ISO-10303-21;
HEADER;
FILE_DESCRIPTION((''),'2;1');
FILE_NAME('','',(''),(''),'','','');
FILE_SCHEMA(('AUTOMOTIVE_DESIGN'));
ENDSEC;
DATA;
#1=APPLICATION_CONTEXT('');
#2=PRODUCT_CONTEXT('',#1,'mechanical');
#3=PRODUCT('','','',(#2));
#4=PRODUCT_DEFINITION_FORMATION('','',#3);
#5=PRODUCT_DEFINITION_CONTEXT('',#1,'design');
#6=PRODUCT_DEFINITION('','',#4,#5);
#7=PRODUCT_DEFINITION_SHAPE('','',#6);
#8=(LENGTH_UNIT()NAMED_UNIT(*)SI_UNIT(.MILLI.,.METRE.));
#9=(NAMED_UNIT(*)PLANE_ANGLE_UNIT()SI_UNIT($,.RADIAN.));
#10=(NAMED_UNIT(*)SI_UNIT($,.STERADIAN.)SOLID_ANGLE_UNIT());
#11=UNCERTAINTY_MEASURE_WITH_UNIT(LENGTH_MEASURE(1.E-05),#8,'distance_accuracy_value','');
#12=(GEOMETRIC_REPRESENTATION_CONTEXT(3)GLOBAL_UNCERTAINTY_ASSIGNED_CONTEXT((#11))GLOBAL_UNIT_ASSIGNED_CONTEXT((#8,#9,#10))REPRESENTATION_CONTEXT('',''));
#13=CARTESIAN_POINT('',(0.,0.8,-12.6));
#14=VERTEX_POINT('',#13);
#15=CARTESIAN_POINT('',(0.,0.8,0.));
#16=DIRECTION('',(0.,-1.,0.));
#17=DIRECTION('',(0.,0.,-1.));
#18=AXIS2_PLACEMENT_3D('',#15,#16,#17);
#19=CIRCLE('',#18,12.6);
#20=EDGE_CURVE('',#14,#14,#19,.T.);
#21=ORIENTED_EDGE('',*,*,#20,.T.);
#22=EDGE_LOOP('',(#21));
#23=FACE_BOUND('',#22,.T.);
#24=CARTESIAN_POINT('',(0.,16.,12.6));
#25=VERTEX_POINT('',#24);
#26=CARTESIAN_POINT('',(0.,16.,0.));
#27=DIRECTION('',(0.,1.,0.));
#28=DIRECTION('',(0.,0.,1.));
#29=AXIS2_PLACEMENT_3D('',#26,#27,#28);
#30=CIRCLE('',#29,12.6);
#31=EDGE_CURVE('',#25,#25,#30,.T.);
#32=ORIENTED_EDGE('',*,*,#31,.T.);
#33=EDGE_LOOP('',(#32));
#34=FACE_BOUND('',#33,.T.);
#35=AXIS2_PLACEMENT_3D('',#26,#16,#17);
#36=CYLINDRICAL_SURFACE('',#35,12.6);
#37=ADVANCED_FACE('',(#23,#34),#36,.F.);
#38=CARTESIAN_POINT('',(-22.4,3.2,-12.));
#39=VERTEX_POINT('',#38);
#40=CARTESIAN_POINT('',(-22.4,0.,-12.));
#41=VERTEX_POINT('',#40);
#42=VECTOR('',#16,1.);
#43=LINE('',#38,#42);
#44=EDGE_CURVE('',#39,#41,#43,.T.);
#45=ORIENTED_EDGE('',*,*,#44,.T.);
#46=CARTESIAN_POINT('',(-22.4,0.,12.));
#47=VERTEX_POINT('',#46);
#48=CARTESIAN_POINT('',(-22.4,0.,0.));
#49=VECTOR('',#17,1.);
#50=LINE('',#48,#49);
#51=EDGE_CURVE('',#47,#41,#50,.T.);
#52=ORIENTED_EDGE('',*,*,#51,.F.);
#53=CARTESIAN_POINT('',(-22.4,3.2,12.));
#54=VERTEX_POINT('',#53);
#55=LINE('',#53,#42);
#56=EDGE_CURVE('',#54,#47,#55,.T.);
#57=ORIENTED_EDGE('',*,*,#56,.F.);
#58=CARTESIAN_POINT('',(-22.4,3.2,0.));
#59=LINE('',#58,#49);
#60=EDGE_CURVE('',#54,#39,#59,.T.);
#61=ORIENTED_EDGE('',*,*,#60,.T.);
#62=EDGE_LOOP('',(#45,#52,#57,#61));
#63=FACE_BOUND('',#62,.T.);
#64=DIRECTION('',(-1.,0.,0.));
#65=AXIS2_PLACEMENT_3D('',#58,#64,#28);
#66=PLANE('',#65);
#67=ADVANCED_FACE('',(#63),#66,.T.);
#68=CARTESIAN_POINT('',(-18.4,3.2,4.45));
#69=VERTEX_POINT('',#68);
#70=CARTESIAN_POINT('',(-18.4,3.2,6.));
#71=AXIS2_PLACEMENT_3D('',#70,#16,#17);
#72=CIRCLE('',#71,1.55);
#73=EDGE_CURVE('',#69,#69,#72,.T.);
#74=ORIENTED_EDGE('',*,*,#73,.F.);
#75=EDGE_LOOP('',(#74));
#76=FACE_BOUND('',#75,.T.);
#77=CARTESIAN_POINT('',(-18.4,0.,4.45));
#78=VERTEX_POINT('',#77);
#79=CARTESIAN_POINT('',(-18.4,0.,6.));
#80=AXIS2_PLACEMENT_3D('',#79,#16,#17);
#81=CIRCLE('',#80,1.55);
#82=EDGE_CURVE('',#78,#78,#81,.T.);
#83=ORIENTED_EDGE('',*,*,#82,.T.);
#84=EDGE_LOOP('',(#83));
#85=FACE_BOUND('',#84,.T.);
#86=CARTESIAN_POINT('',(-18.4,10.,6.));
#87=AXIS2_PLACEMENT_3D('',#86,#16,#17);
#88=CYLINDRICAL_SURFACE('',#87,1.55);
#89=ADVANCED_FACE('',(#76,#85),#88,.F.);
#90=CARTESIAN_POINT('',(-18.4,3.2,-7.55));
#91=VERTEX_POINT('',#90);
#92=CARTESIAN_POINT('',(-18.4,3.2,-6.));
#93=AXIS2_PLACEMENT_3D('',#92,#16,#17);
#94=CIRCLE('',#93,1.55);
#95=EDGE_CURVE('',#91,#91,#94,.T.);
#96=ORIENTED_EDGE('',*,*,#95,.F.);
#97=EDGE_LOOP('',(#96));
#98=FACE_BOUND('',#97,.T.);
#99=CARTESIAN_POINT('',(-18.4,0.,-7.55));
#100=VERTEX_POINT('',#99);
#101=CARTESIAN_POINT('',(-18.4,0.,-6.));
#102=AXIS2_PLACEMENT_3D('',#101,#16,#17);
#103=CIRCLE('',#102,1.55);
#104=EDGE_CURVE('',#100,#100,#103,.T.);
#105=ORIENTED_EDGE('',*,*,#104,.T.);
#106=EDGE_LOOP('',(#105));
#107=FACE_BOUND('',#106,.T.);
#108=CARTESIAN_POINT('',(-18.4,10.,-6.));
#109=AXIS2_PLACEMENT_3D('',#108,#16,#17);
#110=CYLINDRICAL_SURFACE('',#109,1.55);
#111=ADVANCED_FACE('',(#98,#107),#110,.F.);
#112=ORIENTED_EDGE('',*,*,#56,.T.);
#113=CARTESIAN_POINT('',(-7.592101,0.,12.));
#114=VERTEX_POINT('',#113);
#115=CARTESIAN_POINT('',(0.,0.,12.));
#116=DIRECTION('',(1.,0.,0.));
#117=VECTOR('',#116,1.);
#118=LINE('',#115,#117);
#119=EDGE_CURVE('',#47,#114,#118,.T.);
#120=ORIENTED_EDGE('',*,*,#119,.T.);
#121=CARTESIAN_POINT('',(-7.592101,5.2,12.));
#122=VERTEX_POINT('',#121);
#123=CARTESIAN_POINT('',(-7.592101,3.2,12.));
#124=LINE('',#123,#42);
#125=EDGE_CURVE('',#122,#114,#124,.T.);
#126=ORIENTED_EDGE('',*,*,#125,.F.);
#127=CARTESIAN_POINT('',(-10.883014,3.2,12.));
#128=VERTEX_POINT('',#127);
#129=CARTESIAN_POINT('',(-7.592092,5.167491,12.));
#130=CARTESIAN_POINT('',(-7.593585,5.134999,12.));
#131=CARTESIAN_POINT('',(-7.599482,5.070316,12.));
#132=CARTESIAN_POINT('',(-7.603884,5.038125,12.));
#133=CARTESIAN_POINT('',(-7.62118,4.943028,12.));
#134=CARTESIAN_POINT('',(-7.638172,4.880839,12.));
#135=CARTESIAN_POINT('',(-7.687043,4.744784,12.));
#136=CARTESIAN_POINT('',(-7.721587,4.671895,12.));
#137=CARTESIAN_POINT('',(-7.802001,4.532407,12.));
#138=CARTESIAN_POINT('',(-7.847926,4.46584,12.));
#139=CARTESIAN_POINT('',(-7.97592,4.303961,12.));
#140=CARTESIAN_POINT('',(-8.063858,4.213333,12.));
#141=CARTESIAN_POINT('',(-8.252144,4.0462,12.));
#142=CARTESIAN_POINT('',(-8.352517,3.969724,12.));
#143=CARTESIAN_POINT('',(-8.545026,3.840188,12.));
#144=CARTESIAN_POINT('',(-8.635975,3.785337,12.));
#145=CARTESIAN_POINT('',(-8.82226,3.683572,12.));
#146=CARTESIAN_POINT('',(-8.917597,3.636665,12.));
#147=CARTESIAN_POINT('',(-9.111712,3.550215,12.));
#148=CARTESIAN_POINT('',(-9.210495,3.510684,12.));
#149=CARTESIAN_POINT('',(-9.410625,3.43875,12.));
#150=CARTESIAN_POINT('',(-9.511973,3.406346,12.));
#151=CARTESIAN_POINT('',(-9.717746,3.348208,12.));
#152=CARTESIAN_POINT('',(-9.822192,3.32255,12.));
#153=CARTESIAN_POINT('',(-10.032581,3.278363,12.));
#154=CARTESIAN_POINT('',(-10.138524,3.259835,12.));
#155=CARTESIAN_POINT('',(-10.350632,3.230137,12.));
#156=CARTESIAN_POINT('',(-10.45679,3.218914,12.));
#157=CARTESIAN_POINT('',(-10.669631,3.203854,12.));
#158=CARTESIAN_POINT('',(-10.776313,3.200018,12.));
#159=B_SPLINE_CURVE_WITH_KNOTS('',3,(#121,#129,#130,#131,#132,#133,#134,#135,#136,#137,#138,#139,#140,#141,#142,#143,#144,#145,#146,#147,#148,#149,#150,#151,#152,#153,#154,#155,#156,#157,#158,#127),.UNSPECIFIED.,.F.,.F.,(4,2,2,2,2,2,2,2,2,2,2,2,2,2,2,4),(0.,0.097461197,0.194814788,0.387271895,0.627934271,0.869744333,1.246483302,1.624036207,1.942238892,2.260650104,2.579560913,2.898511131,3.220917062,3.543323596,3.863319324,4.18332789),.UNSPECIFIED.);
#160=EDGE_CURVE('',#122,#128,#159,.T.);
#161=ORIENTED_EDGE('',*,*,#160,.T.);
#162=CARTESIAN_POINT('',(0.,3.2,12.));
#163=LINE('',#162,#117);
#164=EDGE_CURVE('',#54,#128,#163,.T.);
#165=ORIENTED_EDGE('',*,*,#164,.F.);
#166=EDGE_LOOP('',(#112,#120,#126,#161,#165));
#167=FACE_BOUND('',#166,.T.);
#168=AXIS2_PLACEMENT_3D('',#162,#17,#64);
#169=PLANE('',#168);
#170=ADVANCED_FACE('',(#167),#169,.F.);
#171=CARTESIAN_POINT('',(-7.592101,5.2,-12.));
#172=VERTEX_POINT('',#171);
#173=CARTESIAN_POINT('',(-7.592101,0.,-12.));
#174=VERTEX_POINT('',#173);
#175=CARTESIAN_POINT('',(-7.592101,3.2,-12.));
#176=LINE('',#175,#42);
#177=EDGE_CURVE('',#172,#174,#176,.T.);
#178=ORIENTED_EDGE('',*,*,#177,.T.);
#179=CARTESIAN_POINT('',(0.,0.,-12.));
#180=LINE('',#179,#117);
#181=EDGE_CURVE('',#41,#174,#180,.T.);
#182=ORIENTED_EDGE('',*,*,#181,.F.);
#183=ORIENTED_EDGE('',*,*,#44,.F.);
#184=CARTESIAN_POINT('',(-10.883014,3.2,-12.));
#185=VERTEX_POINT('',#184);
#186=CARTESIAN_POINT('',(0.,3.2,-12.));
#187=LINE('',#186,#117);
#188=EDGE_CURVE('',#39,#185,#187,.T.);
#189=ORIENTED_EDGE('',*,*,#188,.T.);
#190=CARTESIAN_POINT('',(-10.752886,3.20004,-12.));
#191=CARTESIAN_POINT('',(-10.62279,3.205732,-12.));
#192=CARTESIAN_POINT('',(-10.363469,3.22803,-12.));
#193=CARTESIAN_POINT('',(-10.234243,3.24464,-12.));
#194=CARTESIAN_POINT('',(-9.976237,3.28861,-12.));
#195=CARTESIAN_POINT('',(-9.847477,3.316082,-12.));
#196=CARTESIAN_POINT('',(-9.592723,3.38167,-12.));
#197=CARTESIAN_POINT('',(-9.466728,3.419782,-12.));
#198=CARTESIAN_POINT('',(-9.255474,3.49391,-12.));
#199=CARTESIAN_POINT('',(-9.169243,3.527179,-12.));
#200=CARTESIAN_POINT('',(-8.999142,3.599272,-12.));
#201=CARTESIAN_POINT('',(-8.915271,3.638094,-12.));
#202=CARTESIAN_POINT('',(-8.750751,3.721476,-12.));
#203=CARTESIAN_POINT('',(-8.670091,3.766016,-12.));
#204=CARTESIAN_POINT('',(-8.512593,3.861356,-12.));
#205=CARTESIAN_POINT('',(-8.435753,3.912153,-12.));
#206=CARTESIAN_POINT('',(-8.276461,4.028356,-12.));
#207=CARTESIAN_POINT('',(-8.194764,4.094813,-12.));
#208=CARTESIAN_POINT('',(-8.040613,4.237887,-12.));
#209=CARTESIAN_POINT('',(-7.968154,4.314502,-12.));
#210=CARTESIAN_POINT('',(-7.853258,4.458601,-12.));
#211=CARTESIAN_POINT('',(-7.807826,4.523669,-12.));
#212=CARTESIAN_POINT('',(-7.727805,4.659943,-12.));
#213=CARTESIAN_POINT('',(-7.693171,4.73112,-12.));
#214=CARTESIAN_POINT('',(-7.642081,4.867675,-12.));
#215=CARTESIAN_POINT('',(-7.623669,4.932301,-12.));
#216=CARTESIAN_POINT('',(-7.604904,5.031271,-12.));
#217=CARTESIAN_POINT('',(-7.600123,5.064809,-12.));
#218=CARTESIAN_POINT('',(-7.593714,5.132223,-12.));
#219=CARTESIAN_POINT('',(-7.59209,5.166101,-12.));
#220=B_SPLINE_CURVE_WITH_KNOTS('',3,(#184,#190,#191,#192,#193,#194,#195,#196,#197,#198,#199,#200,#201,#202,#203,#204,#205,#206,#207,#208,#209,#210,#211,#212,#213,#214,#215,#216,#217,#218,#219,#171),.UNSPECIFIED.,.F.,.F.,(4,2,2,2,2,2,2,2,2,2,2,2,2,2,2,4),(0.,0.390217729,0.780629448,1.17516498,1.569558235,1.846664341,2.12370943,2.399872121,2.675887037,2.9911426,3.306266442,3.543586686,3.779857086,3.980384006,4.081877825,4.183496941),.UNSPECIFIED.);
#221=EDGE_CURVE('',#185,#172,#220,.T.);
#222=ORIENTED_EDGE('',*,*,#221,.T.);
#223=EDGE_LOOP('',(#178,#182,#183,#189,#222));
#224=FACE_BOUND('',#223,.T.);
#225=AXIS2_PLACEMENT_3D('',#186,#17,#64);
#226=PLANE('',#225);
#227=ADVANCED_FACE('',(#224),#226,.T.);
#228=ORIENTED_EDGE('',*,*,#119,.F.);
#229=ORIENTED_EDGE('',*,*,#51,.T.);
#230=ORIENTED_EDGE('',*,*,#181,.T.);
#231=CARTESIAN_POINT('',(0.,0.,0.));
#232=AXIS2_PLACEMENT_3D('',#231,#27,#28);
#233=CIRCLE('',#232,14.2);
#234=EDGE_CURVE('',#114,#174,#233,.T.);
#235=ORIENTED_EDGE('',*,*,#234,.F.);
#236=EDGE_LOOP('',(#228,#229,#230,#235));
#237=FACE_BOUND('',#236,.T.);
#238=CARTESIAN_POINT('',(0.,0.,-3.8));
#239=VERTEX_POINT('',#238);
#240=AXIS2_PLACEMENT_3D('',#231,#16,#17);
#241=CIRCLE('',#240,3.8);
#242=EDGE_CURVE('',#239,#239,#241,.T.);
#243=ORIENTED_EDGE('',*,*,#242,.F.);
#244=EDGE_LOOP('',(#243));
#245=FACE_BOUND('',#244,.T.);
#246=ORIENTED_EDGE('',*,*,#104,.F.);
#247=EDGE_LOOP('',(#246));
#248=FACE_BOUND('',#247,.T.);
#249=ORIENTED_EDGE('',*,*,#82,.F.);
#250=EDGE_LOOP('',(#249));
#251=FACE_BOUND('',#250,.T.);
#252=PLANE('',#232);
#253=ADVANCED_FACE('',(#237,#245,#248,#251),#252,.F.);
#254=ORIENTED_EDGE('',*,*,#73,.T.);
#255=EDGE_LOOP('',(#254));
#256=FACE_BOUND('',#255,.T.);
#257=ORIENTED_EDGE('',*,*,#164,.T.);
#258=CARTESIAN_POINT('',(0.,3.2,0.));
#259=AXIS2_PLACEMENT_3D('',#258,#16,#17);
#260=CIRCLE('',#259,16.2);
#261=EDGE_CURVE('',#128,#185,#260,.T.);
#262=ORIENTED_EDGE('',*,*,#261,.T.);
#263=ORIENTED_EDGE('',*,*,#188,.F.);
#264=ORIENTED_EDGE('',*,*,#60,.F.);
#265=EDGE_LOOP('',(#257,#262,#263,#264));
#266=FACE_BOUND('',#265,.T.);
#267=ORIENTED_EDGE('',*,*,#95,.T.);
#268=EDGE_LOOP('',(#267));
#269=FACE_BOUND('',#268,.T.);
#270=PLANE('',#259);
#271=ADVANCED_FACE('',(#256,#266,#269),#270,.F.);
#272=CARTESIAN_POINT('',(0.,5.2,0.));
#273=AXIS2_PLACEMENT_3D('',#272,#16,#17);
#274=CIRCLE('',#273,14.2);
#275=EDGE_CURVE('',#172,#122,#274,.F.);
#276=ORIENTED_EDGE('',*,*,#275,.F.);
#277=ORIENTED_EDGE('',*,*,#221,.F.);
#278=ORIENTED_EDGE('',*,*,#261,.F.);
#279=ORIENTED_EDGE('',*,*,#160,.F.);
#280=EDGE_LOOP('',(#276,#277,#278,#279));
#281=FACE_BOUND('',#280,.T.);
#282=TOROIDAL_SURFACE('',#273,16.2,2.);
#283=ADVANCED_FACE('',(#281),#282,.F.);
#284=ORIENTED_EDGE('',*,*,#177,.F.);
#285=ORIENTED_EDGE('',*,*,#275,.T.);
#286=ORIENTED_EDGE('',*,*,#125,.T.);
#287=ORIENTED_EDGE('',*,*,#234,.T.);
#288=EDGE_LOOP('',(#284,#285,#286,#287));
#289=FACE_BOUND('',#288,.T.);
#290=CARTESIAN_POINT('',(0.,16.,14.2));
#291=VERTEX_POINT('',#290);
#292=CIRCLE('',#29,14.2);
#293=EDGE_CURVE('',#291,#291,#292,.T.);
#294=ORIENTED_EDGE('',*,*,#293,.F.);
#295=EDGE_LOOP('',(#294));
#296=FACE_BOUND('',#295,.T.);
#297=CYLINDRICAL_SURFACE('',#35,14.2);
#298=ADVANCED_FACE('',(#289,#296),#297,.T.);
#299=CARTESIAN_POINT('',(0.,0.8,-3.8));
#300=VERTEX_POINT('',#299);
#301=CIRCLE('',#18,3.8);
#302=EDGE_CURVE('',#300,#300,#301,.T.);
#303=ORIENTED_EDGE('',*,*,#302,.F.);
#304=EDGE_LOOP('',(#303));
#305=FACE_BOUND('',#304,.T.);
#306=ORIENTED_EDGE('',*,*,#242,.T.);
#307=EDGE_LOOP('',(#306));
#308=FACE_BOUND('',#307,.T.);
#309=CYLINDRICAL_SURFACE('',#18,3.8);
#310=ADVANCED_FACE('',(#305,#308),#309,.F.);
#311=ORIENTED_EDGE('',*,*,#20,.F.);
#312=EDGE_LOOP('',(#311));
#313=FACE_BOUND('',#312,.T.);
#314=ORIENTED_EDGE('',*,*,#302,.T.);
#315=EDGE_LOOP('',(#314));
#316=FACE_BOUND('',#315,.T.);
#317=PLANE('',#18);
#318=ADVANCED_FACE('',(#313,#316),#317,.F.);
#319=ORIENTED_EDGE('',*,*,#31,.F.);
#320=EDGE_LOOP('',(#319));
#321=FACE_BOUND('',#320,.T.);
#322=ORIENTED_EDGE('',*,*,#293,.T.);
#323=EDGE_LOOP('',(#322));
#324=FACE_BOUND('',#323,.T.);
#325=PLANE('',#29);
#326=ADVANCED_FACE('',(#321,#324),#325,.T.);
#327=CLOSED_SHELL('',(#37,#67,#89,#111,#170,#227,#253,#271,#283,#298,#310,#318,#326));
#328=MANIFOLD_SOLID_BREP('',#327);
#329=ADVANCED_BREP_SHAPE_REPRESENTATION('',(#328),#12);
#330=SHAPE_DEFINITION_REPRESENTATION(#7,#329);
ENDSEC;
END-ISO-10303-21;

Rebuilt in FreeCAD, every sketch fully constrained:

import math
import FreeCAD as App
import Part
import Sketcher
from FreeCAD import Vector
Q = App.Units.Quantity


def edges_at(feature, points):
    """Names of the edges that pass closest to the given points."""
    edges = feature.Shape.Edges
    near = lambda p: min(range(len(edges)), key=lambda i: edges[i].distToShape(Part.Vertex(*p))[0])
    return sorted({f"Edge{near(p) + 1}" for p in points})

doc = App.newDocument("Part")
body = doc.addObject("PartDesign::Body", "Body")

sketch1 = body.newObject("Sketcher::SketchObject", "Sketch")
sketch1.AttachmentSupport = (doc.getObject("XZ_Plane"), [""])
sketch1.MapMode = "FlatFace"
sketch1.addGeometry(Part.Circle(Vector(0, 0, 0), Vector(0, 0, 1), 14.2), False)
sketch1.addGeometry(Part.Circle(Vector(0, 0, 0), Vector(0, 0, 1), 12.6), False)
sketch1.addConstraint(Sketcher.Constraint("Coincident", 0, 3, -1, 1))
sketch1.addConstraint(Sketcher.Constraint("Coincident", 1, 3, -1, 1))
sketch1.addConstraint(Sketcher.Constraint("Diameter", 0, Q("28.4 mm")))
sketch1.addConstraint(Sketcher.Constraint("Diameter", 1, Q("25.2 mm")))
pad1 = body.newObject("PartDesign::Pad", "Pad")
pad1.Profile = sketch1
pad1.Length = 16
pad1.Reversed = True

sketch2 = body.newObject("Sketcher::SketchObject", "Sketch001")
sketch2.AttachmentSupport = (doc.getObject("XZ_Plane"), [""])
sketch2.MapMode = "FlatFace"
sketch2.addGeometry(Part.LineSegment(Vector(-7.592101, 12, 0), Vector(-22.4, 12, 0)), False)
sketch2.addGeometry(Part.LineSegment(Vector(-22.4, 12, 0), Vector(-22.4, -12, 0)), False)
sketch2.addGeometry(Part.LineSegment(Vector(-22.4, -12, 0), Vector(-7.592101, -12, 0)), False)
sketch2.addGeometry(Part.ArcOfCircle(Part.Circle(Vector(0, 0, 0), Vector(0, 0, 1), 14.2), math.radians(-180), math.radians(-122.320518)), False)
sketch2.addGeometry(Part.ArcOfCircle(Part.Circle(Vector(0, 0, 0), Vector(0, 0, 1), 14.2), math.radians(122.320518), math.radians(180)), False)
sketch2.addConstraint(Sketcher.Constraint("Coincident", 0, 2, 1, 1))
sketch2.addConstraint(Sketcher.Constraint("Coincident", 1, 2, 2, 1))
sketch2.addConstraint(Sketcher.Constraint("Coincident", 2, 2, 3, 2))
sketch2.addConstraint(Sketcher.Constraint("Tangent", 3, 1, 4, 2))
sketch2.addConstraint(Sketcher.Constraint("Coincident", 4, 1, 0, 1))
sketch2.addConstraint(Sketcher.Constraint("Horizontal", 0))
sketch2.addConstraint(Sketcher.Constraint("Vertical", 1))
sketch2.addConstraint(Sketcher.Constraint("Horizontal", 2))
sketch2.addConstraint(Sketcher.Constraint("Coincident", 3, 3, -1, 1))
sketch2.addConstraint(Sketcher.Constraint("Equal", 3, 4))
sketch2.addConstraint(Sketcher.Constraint("PointOnObject", 3, 1, -1))
sketch2.addConstraint(Sketcher.Constraint("Vertical", 2, 2, 4, 1))
sketch2.addConstraint(Sketcher.Constraint("Radius", 3, Q("14.2 mm")))
sketch2.addConstraint(Sketcher.Constraint("DistanceY", 1, 2, 1, 1, Q("24 mm")))
sketch2.addConstraint(Sketcher.Constraint("DistanceX", 0, 2, -1, 1, Q("22.4 mm")))
pad2 = body.newObject("PartDesign::Pad", "Pad001")
pad2.Profile = sketch2
pad2.Length = 3.2
pad2.Reversed = True

sketch3 = body.newObject("Sketcher::SketchObject", "Sketch002")
sketch3.AttachmentSupport = (doc.getObject("XZ_Plane"), [""])
sketch3.MapMode = "FlatFace"
sketch3.addGeometry(Part.Circle(Vector(-18.4, -6, 0), Vector(0, 0, 1), 1.55), False)
sketch3.addGeometry(Part.Circle(Vector(-18.4, 6, 0), Vector(0, 0, 1), 1.55), False)
sketch3.addConstraint(Sketcher.Constraint("Equal", 0, 1))
sketch3.addConstraint(Sketcher.Constraint("Symmetric", 0, 3, 1, 3, -1))
sketch3.addConstraint(Sketcher.Constraint("Diameter", 0, Q("3.1 mm")))
sketch3.addConstraint(Sketcher.Constraint("DistanceY", 0, 3, -1, 1, Q("6 mm")))
sketch3.addConstraint(Sketcher.Constraint("DistanceX", 0, 3, -1, 1, Q("18.4 mm")))
pocket1 = body.newObject("PartDesign::Pocket", "Pocket")
pocket1.Profile = sketch3
pocket1.Length = 10
doc.recompute()

fillet = body.newObject("PartDesign::Fillet", "Fillet")
fillet.Base = (pocket1, edges_at(pocket1, [(-12.439, 3.2, -6.85)]))
fillet.Radius = 2

sketch4 = body.newObject("Sketcher::SketchObject", "Sketch003")
sketch4.AttachmentSupport = (doc.getObject("XZ_Plane"), [""])
sketch4.MapMode = "FlatFace"
sketch4.addGeometry(Part.Circle(Vector(0, 0, 0), Vector(0, 0, 1), 12.6), False)
sketch4.addGeometry(Part.Circle(Vector(0, 0, 0), Vector(0, 0, 1), 3.8), False)
sketch4.addConstraint(Sketcher.Constraint("Coincident", 0, 3, -1, 1))
sketch4.addConstraint(Sketcher.Constraint("Coincident", 1, 3, -1, 1))
sketch4.addConstraint(Sketcher.Constraint("Diameter", 0, Q("25.2 mm")))
sketch4.addConstraint(Sketcher.Constraint("Diameter", 1, Q("7.6 mm")))
pad3 = body.newObject("PartDesign::Pad", "Pad002")
pad3.Profile = sketch4
pad3.Length = 0.8
pad3.Reversed = True

doc.recompute()
